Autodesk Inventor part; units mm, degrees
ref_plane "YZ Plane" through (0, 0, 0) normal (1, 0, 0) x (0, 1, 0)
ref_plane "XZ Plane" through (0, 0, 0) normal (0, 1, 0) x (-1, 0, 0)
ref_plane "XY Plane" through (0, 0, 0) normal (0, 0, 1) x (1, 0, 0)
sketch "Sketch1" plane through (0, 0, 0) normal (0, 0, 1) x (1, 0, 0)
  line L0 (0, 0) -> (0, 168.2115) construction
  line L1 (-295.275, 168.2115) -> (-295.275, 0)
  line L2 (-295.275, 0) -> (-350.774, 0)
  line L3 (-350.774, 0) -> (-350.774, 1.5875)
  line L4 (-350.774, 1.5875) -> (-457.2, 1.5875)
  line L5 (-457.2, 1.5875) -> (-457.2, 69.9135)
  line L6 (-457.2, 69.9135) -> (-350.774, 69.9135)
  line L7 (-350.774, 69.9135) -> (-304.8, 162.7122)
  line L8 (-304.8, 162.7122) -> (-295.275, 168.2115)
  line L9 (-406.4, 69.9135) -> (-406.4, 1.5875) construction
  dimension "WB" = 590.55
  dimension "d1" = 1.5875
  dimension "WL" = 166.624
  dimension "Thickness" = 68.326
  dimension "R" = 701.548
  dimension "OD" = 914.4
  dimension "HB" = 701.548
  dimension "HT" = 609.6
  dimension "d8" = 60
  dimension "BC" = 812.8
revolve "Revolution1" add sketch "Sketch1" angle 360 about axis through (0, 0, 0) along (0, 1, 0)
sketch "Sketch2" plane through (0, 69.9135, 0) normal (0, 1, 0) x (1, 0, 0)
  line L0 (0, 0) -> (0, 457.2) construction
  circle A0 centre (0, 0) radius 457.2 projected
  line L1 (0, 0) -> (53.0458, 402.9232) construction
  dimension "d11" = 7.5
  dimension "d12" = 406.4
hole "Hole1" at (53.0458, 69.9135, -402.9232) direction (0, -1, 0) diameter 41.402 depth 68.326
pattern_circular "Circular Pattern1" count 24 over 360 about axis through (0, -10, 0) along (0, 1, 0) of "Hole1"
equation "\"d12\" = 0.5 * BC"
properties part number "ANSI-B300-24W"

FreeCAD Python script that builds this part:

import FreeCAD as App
import Part
import Sketcher
Q = App.Units.Quantity

doc = App.newDocument("Part")
params = doc.addObject("Spreadsheet::Sheet", "Params")
for row, (alias, value) in enumerate([
    ("sketch1_height", "2.69 in"),
    ("sketch1_height2", "0.0625 in"),
    ("sketch1_width", "4.19 in"),
    ("sketch1_width2", "2.185 in"),
    ("revolution_angle", "360 deg"),
    ("sketch2_diameter", "1.63 in"),
    ("hole_diameter", "1.63 in"),
    ("hole_depth", "2.69 in"),
], start=1):
    params.set(f"A{row}", alias)
    params.set(f"B{row}", "=" + value)
    params.setAlias(f"B{row}", alias)

body = doc.addObject("PartDesign::Body", "Body")

sketch1 = doc.addObject("Sketcher::SketchObject", "Sketch")
body.addObject(sketch1)
sketch1.AttachmentSupport = (doc.XY_Plane, [""])
sketch1.MapMode = "FlatFace"
sketch1.addGeometry(Part.LineSegment(App.Vector(-295.3, 0, 0), App.Vector(-295.3, 168.2, 0)), False)
sketch1.addGeometry(Part.LineSegment(App.Vector(-295.3, 168.2, 0), App.Vector(-304.8, 162.7, 0)), False)
sketch1.addGeometry(Part.LineSegment(App.Vector(-304.8, 162.7, 0), App.Vector(-350.8, 69.9, 0)), False)
sketch1.addGeometry(Part.LineSegment(App.Vector(-350.8, 69.9, 0), App.Vector(-457.2, 69.9, 0)), False)
sketch1.addGeometry(Part.LineSegment(App.Vector(-457.2, 69.9, 0), App.Vector(-457.2, 1.6, 0)), False)
sketch1.addGeometry(Part.LineSegment(App.Vector(-457.2, 1.6, 0), App.Vector(-350.8, 1.6, 0)), False)
sketch1.addGeometry(Part.LineSegment(App.Vector(-350.8, 1.6, 0), App.Vector(-350.8, 0, 0)), False)
sketch1.addGeometry(Part.LineSegment(App.Vector(-350.8, 0, 0), App.Vector(-295.3, 0, 0)), False)
sketch1.addConstraint(Sketcher.Constraint("Coincident", 0, 2, 1, 1))
sketch1.addConstraint(Sketcher.Constraint("Coincident", 1, 2, 2, 1))
sketch1.addConstraint(Sketcher.Constraint("Coincident", 2, 2, 3, 1))
sketch1.addConstraint(Sketcher.Constraint("Coincident", 3, 2, 4, 1))
sketch1.addConstraint(Sketcher.Constraint("Coincident", 4, 2, 5, 1))
sketch1.addConstraint(Sketcher.Constraint("Coincident", 5, 2, 6, 1))
sketch1.addConstraint(Sketcher.Constraint("Coincident", 6, 2, 7, 1))
sketch1.addConstraint(Sketcher.Constraint("Coincident", 7, 2, 0, 1))
sketch1.addConstraint(Sketcher.Constraint("Vertical", 0))
sketch1.addConstraint(Sketcher.Constraint("Horizontal", 3))
sketch1.addConstraint(Sketcher.Constraint("Vertical", 4))
sketch1.addConstraint(Sketcher.Constraint("Horizontal", 5))
sketch1.addConstraint(Sketcher.Constraint("Vertical", 6))
sketch1.addConstraint(Sketcher.Constraint("Horizontal", 7))
sketch1.addConstraint(Sketcher.Constraint("PointOnObject", 6, 2, -1))
sketch1.addConstraint(Sketcher.Constraint("Vertical", 2, 2, 5, 2))
sketch1.addConstraint(Sketcher.Constraint("DistanceY", 4, 2, 4, 1, Q("2.69 in")))
sketch1.addConstraint(Sketcher.Constraint("DistanceY", 6, 2, 6, 1, Q("0.0625 in")))
sketch1.addConstraint(Sketcher.Constraint("DistanceY", 4, 2, 0, 2, Q("6.56 in")))
sketch1.addConstraint(Sketcher.Constraint("DistanceX", 1, 2, -1, 1, Q("12 in")))
sketch1.addConstraint(Sketcher.Constraint("DistanceX", 3, 2, -1, 1, Q("18 in")))
sketch1.addConstraint(Sketcher.Constraint("Angle", 1, Q("-149.9998 deg")))
sketch1.addConstraint(Sketcher.Constraint("DistanceX", 3, 2, 3, 1, Q("4.19 in")))
sketch1.addConstraint(Sketcher.Constraint("DistanceX", 7, 1, 7, 2, Q("2.185 in")))
sketch1.setExpression("Constraints[16]", "Params.sketch1_height")
sketch1.setExpression("Constraints[17]", "Params.sketch1_height2")
sketch1.setExpression("Constraints[22]", "Params.sketch1_width")
sketch1.setExpression("Constraints[23]", "Params.sketch1_width2")
revolution = doc.addObject("PartDesign::Revolution", "Revolution")
body.addObject(revolution)
revolution.Profile = sketch1
revolution.ReferenceAxis = (sketch1, ["V_Axis"])
revolution.setExpression("Angle", "Params.revolution_angle")

sketch2 = doc.addObject("Sketcher::SketchObject", "Sketch001")
body.addObject(sketch2)
sketch2.AttachmentSupport = (doc.XZ_Plane, [""])
sketch2.MapMode = "FlatFace"
sketch2.AttachmentOffset = App.Placement(App.Vector(0, 0, -2.7525 * 25.4), App.Rotation())
sketch2.addGeometry(Part.Circle(App.Vector(53, -403, 0), App.Vector(0, 0, 1), 21), False)
sketch2.addConstraint(Sketcher.Constraint("Diameter", 0, Q("1.63 in")))
sketch2.addConstraint(Sketcher.Constraint("DistanceX", -1, 1, 0, 3, 53.0458))
sketch2.addConstraint(Sketcher.Constraint("DistanceY", 0, 3, -1, 1, 402.9232))
sketch2.setExpression("Constraints[0]", "Params.sketch2_diameter")
doc.recompute()
hole = doc.addObject("PartDesign::Hole", "Hole")
body.addObject(hole)
hole.Profile = sketch2
hole.ThreadType = "None"
hole.setExpression("Diameter", "Params.hole_diameter")
hole.DepthType = "Dimension"
hole.setExpression("Depth", "Params.hole_depth")
hole.DrillPoint = "Flat"
hole.Reversed = True
doc.recompute()

polarpattern = doc.addObject("PartDesign::PolarPattern", "PolarPattern")
body.addObject(polarpattern)
polarpattern.Originals = [hole]
polarpattern.Axis = (doc.Y_Axis, [""])
polarpattern.Angle = 360
polarpattern.Occurrences = 24
body.Tip = polarpattern

doc.recompute()
